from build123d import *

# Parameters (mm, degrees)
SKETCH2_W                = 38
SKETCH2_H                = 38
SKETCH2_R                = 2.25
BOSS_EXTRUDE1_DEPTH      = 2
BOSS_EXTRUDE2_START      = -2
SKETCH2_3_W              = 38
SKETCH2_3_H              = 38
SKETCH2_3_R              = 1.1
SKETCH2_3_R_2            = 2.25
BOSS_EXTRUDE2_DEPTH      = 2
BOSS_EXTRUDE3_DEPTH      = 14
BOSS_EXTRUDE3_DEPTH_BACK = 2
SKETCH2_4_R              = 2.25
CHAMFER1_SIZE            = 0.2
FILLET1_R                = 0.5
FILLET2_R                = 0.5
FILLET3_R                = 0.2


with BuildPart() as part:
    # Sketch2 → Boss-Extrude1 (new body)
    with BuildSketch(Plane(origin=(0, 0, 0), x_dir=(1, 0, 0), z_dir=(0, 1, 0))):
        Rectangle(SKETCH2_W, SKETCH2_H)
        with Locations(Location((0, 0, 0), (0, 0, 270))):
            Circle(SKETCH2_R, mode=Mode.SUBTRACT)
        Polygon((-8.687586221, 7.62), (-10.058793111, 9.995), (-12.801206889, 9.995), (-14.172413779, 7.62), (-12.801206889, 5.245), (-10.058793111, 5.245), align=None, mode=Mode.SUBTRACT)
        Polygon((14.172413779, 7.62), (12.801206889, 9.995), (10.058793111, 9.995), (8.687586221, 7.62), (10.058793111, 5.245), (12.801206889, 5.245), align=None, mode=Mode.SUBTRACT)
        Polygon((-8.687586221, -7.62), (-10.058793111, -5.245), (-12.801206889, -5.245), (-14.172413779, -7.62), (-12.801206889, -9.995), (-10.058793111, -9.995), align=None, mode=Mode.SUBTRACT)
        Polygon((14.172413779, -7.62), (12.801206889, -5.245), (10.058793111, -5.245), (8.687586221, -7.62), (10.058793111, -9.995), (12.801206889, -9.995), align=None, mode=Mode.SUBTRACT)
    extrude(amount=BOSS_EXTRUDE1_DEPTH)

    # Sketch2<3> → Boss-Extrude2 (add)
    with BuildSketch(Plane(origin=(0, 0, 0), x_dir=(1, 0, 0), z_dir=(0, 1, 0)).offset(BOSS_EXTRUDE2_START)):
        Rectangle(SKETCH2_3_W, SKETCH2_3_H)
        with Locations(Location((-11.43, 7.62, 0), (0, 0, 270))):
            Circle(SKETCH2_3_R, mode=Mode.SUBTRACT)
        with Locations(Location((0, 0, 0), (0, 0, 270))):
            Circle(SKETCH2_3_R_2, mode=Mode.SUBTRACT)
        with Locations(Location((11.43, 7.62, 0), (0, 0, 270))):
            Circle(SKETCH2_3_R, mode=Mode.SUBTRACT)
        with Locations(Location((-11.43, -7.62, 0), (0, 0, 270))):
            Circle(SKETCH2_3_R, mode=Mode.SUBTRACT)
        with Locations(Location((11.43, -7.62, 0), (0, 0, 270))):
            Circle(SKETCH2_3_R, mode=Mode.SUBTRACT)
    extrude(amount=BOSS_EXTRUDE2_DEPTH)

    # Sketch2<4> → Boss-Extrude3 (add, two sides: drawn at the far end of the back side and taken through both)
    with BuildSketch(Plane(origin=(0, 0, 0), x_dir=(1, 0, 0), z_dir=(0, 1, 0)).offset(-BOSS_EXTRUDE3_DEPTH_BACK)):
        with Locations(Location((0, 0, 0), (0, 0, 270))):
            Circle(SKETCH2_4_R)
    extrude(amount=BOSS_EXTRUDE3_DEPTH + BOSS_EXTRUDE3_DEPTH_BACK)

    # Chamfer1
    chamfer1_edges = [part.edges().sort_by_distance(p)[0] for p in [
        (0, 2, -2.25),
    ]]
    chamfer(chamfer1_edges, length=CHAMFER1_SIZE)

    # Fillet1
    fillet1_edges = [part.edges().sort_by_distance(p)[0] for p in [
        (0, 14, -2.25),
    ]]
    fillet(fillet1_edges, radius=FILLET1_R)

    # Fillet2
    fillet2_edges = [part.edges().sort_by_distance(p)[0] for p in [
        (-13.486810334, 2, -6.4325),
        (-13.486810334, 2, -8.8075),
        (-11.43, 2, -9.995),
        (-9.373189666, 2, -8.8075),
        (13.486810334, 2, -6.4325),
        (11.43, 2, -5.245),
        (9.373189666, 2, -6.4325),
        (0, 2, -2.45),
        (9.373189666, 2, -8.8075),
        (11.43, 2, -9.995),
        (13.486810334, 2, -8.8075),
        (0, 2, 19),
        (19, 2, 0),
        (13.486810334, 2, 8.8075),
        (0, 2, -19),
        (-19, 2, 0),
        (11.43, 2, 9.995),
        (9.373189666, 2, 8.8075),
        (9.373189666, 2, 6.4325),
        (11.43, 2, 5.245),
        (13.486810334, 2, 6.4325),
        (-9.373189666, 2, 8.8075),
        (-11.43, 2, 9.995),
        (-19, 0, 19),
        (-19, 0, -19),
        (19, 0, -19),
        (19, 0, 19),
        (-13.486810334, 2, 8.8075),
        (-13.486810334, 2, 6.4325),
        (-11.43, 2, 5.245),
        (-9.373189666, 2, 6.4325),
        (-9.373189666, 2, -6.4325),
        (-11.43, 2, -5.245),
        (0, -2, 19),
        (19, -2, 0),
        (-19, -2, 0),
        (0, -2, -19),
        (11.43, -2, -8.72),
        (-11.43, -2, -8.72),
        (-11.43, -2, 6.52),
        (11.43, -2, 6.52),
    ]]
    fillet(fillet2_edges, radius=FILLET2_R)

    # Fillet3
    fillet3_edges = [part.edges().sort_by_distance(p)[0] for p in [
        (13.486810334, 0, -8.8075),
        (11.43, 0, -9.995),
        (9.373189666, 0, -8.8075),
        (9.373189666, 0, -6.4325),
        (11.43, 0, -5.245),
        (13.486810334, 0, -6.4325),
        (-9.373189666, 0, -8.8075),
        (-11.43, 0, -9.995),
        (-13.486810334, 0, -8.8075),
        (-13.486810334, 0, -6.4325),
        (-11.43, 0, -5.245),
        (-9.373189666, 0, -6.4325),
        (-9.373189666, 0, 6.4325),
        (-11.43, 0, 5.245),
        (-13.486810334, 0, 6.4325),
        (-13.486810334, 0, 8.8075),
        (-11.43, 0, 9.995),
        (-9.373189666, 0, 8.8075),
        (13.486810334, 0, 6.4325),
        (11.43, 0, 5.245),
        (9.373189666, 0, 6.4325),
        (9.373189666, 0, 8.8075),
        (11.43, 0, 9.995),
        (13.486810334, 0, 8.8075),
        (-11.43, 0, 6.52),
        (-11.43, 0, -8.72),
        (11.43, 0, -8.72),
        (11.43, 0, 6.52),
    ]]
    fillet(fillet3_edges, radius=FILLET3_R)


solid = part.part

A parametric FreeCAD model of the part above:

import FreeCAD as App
import Part
import Sketcher
Q = App.Units.Quantity


def edges_at(feature, points):
    """Names of the edges that pass closest to the given points."""
    edges = feature.Shape.Edges
    near = lambda p: min(range(len(edges)), key=lambda i: edges[i].distToShape(Part.Vertex(*p))[0])
    return sorted({f"Edge{near(p) + 1}" for p in points})

doc = App.newDocument("Part")
body = doc.addObject("PartDesign::Body", "Body")

sketch1 = body.newObject("Sketcher::SketchObject", "Sketch")
sketch1.AttachmentSupport = (doc.getObject("XZ_Plane"), [""])
sketch1.MapMode = "FlatFace"
sketch1.addGeometry([
    Part.LineSegment(App.Vector(-19, -19, 0), App.Vector(-19, 19, 0)),
    Part.LineSegment(App.Vector(-19, 19, 0), App.Vector(19, 19, 0)),
    Part.LineSegment(App.Vector(19, 19, 0), App.Vector(19, -19, 0)),
    Part.LineSegment(App.Vector(19, -19, 0), App.Vector(-19, -19, 0)),
    Part.LineSegment(App.Vector(-10.058793, 5.245, 0), App.Vector(-8.687586, 7.62, 0)),
    Part.LineSegment(App.Vector(-8.687586, 7.62, 0), App.Vector(-10.058793, 9.995, 0)),
    Part.LineSegment(App.Vector(-10.058793, 9.995, 0), App.Vector(-12.801207, 9.995, 0)),
    Part.LineSegment(App.Vector(-12.801207, 9.995, 0), App.Vector(-14.172414, 7.62, 0)),
    Part.LineSegment(App.Vector(-14.172414, 7.62, 0), App.Vector(-12.801207, 5.245, 0)),
    Part.LineSegment(App.Vector(-12.801207, 5.245, 0), App.Vector(-10.058793, 5.245, 0)),
    Part.LineSegment(App.Vector(12.801207, 5.245, 0), App.Vector(14.172414, 7.62, 0)),
    Part.LineSegment(App.Vector(14.172414, 7.62, 0), App.Vector(12.801207, 9.995, 0)),
    Part.LineSegment(App.Vector(12.801207, 9.995, 0), App.Vector(10.058793, 9.995, 0)),
    Part.LineSegment(App.Vector(10.058793, 9.995, 0), App.Vector(8.687586, 7.62, 0)),
    Part.LineSegment(App.Vector(8.687586, 7.62, 0), App.Vector(10.058793, 5.245, 0)),
    Part.LineSegment(App.Vector(10.058793, 5.245, 0), App.Vector(12.801207, 5.245, 0)),
    Part.LineSegment(App.Vector(-10.058793, -9.995, 0), App.Vector(-8.687586, -7.62, 0)),
    Part.LineSegment(App.Vector(-8.687586, -7.62, 0), App.Vector(-10.058793, -5.245, 0)),
    Part.LineSegment(App.Vector(-10.058793, -5.245, 0), App.Vector(-12.801207, -5.245, 0)),
    Part.LineSegment(App.Vector(-12.801207, -5.245, 0), App.Vector(-14.172414, -7.62, 0)),
    Part.LineSegment(App.Vector(-14.172414, -7.62, 0), App.Vector(-12.801207, -9.995, 0)),
    Part.LineSegment(App.Vector(-12.801207, -9.995, 0), App.Vector(-10.058793, -9.995, 0)),
    Part.Circle(App.Vector(0, 0, 0), App.Vector(0, 0, 1), 2.25),
    Part.LineSegment(App.Vector(12.801207, -9.995, 0), App.Vector(14.172414, -7.62, 0)),
    Part.LineSegment(App.Vector(14.172414, -7.62, 0), App.Vector(12.801207, -5.245, 0)),
    Part.LineSegment(App.Vector(12.801207, -5.245, 0), App.Vector(10.058793, -5.245, 0)),
    Part.LineSegment(App.Vector(10.058793, -5.245, 0), App.Vector(8.687586, -7.62, 0)),
    Part.LineSegment(App.Vector(8.687586, -7.62, 0), App.Vector(10.058793, -9.995, 0)),
    Part.LineSegment(App.Vector(10.058793, -9.995, 0), App.Vector(12.801207, -9.995, 0)),
], False)
sketch1.addConstraint([
    Sketcher.Constraint("Coincident", 0, 2, 1, 1),
    Sketcher.Constraint("Coincident", 1, 2, 2, 1),
    Sketcher.Constraint("Coincident", 2, 2, 3, 1),
    Sketcher.Constraint("Coincident", 3, 2, 0, 1),
    Sketcher.Constraint("Coincident", 4, 2, 5, 1),
    Sketcher.Constraint("Coincident", 5, 2, 6, 1),
    Sketcher.Constraint("Coincident", 6, 2, 7, 1),
    Sketcher.Constraint("Coincident", 7, 2, 8, 1),
    Sketcher.Constraint("Coincident", 8, 2, 9, 1),
    Sketcher.Constraint("Coincident", 9, 2, 4, 1),
    Sketcher.Constraint("Coincident", 10, 2, 11, 1),
    Sketcher.Constraint("Coincident", 11, 2, 12, 1),
    Sketcher.Constraint("Coincident", 12, 2, 13, 1),
    Sketcher.Constraint("Coincident", 13, 2, 14, 1),
    Sketcher.Constraint("Coincident", 14, 2, 15, 1),
    Sketcher.Constraint("Coincident", 15, 2, 10, 1),
    Sketcher.Constraint("Coincident", 16, 2, 17, 1),
    Sketcher.Constraint("Coincident", 17, 2, 18, 1),
    Sketcher.Constraint("Coincident", 18, 2, 19, 1),
    Sketcher.Constraint("Coincident", 19, 2, 20, 1),
    Sketcher.Constraint("Coincident", 20, 2, 21, 1),
    Sketcher.Constraint("Coincident", 21, 2, 16, 1),
    Sketcher.Constraint("Coincident", 23, 2, 24, 1),
    Sketcher.Constraint("Coincident", 24, 2, 25, 1),
    Sketcher.Constraint("Coincident", 25, 2, 26, 1),
    Sketcher.Constraint("Coincident", 26, 2, 27, 1),
    Sketcher.Constraint("Coincident", 27, 2, 28, 1),
    Sketcher.Constraint("Coincident", 28, 2, 23, 1),
    Sketcher.Constraint("Vertical", 0),
    Sketcher.Constraint("Horizontal", 1),
    Sketcher.Constraint("Vertical", 2),
    Sketcher.Constraint("Horizontal", 3),
    Sketcher.Constraint("Horizontal", 6),
    Sketcher.Constraint("Horizontal", 9),
    Sketcher.Constraint("Horizontal", 12),
    Sketcher.Constraint("Horizontal", 15),
    Sketcher.Constraint("Horizontal", 18),
    Sketcher.Constraint("Horizontal", 21),
    Sketcher.Constraint("Horizontal", 25),
    Sketcher.Constraint("Horizontal", 28),
    Sketcher.Constraint("Coincident", 22, 3, -1, 1),
    Sketcher.Constraint("Symmetric", 0, 2, 2, 2, -1, 1),
    Sketcher.Constraint("Symmetric", 13, 2, 16, 2, -1, 1),
    Sketcher.Constraint("Symmetric", 14, 2, 17, 2, -1, 1),
    Sketcher.Constraint("Symmetric", 10, 2, 19, 2, -1, 1),
    Sketcher.Constraint("Symmetric", 11, 2, 20, 2, -1, 1),
    Sketcher.Constraint("Symmetric", 7, 2, 23, 2, -1, 1),
    Sketcher.Constraint("Symmetric", 8, 2, 24, 2, -1, 1),
    Sketcher.Constraint("Symmetric", 4, 2, 26, 2, -1, 1),
    Sketcher.Constraint("Symmetric", 5, 2, 27, 2, -1, 1),
    Sketcher.Constraint("Symmetric", 7, 2, 10, 2, -2),
    Sketcher.Constraint("Symmetric", 6, 2, 11, 2, -2),
    Sketcher.Constraint("Symmetric", 4, 2, 13, 2, -2),
    Sketcher.Constraint("Symmetric", 9, 2, 14, 2, -2),
    Sketcher.Constraint("Parallel", 4, 7),
    Sketcher.Constraint("Parallel", 5, 8),
    Sketcher.Constraint("Parallel", 7, 10),
    Sketcher.Constraint("Parallel", 8, 11),
    Sketcher.Constraint("Parallel", 10, 13),
    Sketcher.Constraint("Parallel", 13, 16),
    Sketcher.Constraint("Parallel", 16, 19),
    Sketcher.Constraint("Parallel", 19, 23),
    Sketcher.Constraint("Parallel", 23, 26),
    Sketcher.Constraint("Horizontal", 4, 2, 7, 2),
    Sketcher.Constraint("Vertical", 6, 2, 8, 2),
    Sketcher.Constraint("Equal", 3, 0),
    Sketcher.Constraint("Diameter", 22, Q("4.5 mm")),
    Sketcher.Constraint("DistanceX", 1, 1, 1, 2, Q("38 mm")),
    Sketcher.Constraint("Angle", 4, Q("60 deg")),
    Sketcher.Constraint("DistanceY", -1, 1, 4, 2, Q("7.62 mm")),
    Sketcher.Constraint("DistanceY", 8, 2, 6, 2, Q("4.75 mm")),
    Sketcher.Constraint("DistanceX", 4, 2, 10, 2, Q("22.86 mm")),
    Sketcher.Constraint("DistanceX", 6, 2, 6, 1, Q("2.742414 mm")),
])
pad1 = body.newObject("PartDesign::Pad", "Pad")
pad1.Profile = sketch1
pad1.Length = 2
pad1.Reversed = True

sketch2 = body.newObject("Sketcher::SketchObject", "Sketch001")
sketch2.AttachmentSupport = (doc.getObject("XZ_Plane"), [""])
sketch2.MapMode = "FlatFace"
sketch2.AttachmentOffset = App.Placement(App.Vector(0, 0, 2), App.Rotation())
sketch2.addGeometry([
    Part.LineSegment(App.Vector(-19, -19, 0), App.Vector(-19, 19, 0)),
    Part.LineSegment(App.Vector(-19, 19, 0), App.Vector(19, 19, 0)),
    Part.LineSegment(App.Vector(19, 19, 0), App.Vector(19, -19, 0)),
    Part.LineSegment(App.Vector(19, -19, 0), App.Vector(-19, -19, 0)),
    Part.Circle(App.Vector(-11.43, 7.62, 0), App.Vector(0, 0, 1), 1.1),
    Part.Circle(App.Vector(11.43, 7.62, 0), App.Vector(0, 0, 1), 1.1),
    Part.Circle(App.Vector(0, 0, 0), App.Vector(0, 0, 1), 2.25),
    Part.Circle(App.Vector(-11.43, -7.62, 0), App.Vector(0, 0, 1), 1.1),
    Part.Circle(App.Vector(11.43, -7.62, 0), App.Vector(0, 0, 1), 1.1),
], False)
sketch2.addConstraint([
    Sketcher.Constraint("Coincident", 0, 2, 1, 1),
    Sketcher.Constraint("Coincident", 1, 2, 2, 1),
    Sketcher.Constraint("Coincident", 2, 2, 3, 1),
    Sketcher.Constraint("Coincident", 3, 2, 0, 1),
    Sketcher.Constraint("Vertical", 0),
    Sketcher.Constraint("Horizontal", 1),
    Sketcher.Constraint("Vertical", 2),
    Sketcher.Constraint("Horizontal", 3),
    Sketcher.Constraint("Coincident", 6, 3, -1, 1),
    Sketcher.Constraint("Equal", 4, 5),
    Sketcher.Constraint("Equal", 5, 7),
    Sketcher.Constraint("Equal", 7, 8),
    Sketcher.Constraint("Symmetric", 5, 3, 7, 3, -1, 1),
    Sketcher.Constraint("Symmetric", 4, 3, 8, 3, -1, 1),
    Sketcher.Constraint("Symmetric", 0, 2, 2, 2, -1, 1),
    Sketcher.Constraint("Symmetric", 4, 3, 5, 3, -2),
    Sketcher.Constraint("Equal", 3, 0),
    Sketcher.Constraint("Diameter", 4, Q("2.2 mm")),
    Sketcher.Constraint("Diameter", 6, Q("4.5 mm")),
    Sketcher.Constraint("DistanceX", 1, 1, 1, 2, Q("38 mm")),
    Sketcher.Constraint("DistanceX", 4, 3, -1, 1, Q("11.43 mm")),
    Sketcher.Constraint("DistanceY", -1, 1, 4, 3, Q("7.62 mm")),
])
pad2 = body.newObject("PartDesign::Pad", "Pad001")
pad2.Profile = sketch2
pad2.Length = 2
pad2.Reversed = True

sketch3 = body.newObject("Sketcher::SketchObject", "Sketch002")
sketch3.AttachmentSupport = (doc.getObject("XZ_Plane"), [""])
sketch3.MapMode = "FlatFace"
sketch3.addGeometry(Part.Circle(App.Vector(0, 0, 0), App.Vector(0, 0, 1), 2.25), False)
sketch3.addConstraint([
    Sketcher.Constraint("Coincident", 0, 3, -1, 1),
    Sketcher.Constraint("Diameter", 0, Q("4.5 mm")),
])
pad3 = body.newObject("PartDesign::Pad", "Pad002")
pad3.Profile = sketch3
pad3.Type = "TwoLengths"
pad3.Length = 14
pad3.Length2 = 2
pad3.Reversed = True
doc.recompute()

chamfer = body.newObject("PartDesign::Chamfer", "Chamfer")
chamfer.Base = (pad3, edges_at(pad3, [(0, 2, -2.25)]))
chamfer.Size = 0.2
doc.recompute()

fillet = body.newObject("PartDesign::Fillet", "Fillet")
fillet.Base = (chamfer, edges_at(chamfer, [(0, 14, -2.25)]))
fillet.Radius = 0.5
doc.recompute()

fillet2 = body.newObject("PartDesign::Fillet", "Fillet001")
fillet2.Base = (fillet, edges_at(fillet, [
    (-13.487, 2, -6.433),
    (-13.487, 2, -8.807),
    (-11.43, 2, -9.995),
    (-9.373, 2, -8.807),
    (13.487, 2, -6.433),
    (11.43, 2, -5.245),
    (9.373, 2, -6.433),
    (0, 2, -2.45),
    (9.373, 2, -8.807),
    (11.43, 2, -9.995),
    (13.487, 2, -8.807),
    (0, 2, 19),
    (19, 2, 0),
    (13.487, 2, 8.807),
    (0, 2, -19),
    (-19, 2, 0),
    (11.43, 2, 9.995),
    (9.373, 2, 8.807),
    (9.373, 2, 6.433),
    (11.43, 2, 5.245),
    (13.487, 2, 6.433),
    (-9.373, 2, 8.807),
    (-11.43, 2, 9.995),
    (-19, 0, 19),
    (-19, 0, -19),
    (19, 0, -19),
    (19, 0, 19),
    (-13.487, 2, 8.807),
    (-13.487, 2, 6.433),
    (-11.43, 2, 5.245),
    (-9.373, 2, 6.433),
    (-9.373, 2, -6.433),
    (-11.43, 2, -5.245),
    (0, -2, 19),
    (19, -2, 0),
    (-19, -2, 0),
    (0, -2, -19),
    (11.43, -2, -8.72),
    (-11.43, -2, -8.72),
    (-11.43, -2, 6.52),
    (11.43, -2, 6.52),
]))
fillet2.Radius = 0.5
doc.recompute()

fillet3 = body.newObject("PartDesign::Fillet", "Fillet002")
fillet3.Base = (fillet2, edges_at(fillet2, [
    (13.487, 0, -8.807),
    (11.43, 0, -9.995),
    (9.373, 0, -8.807),
    (9.373, 0, -6.433),
    (11.43, 0, -5.245),
    (13.487, 0, -6.433),
    (-9.373, 0, -8.807),
    (-11.43, 0, -9.995),
    (-13.487, 0, -8.807),
    (-13.487, 0, -6.433),
    (-11.43, 0, -5.245),
    (-9.373, 0, -6.433),
    (-9.373, 0, 6.433),
    (-11.43, 0, 5.245),
    (-13.487, 0, 6.433),
    (-13.487, 0, 8.807),
    (-11.43, 0, 9.995),
    (-9.373, 0, 8.807),
    (13.487, 0, 6.433),
    (11.43, 0, 5.245),
    (9.373, 0, 6.433),
    (9.373, 0, 8.807),
    (11.43, 0, 9.995),
    (13.487, 0, 8.807),
    (-11.43, 0, 6.52),
    (-11.43, 0, -8.72),
    (11.43, 0, -8.72),
    (11.43, 0, 6.52),
]))
fillet3.Radius = 0.2

doc.recompute()
